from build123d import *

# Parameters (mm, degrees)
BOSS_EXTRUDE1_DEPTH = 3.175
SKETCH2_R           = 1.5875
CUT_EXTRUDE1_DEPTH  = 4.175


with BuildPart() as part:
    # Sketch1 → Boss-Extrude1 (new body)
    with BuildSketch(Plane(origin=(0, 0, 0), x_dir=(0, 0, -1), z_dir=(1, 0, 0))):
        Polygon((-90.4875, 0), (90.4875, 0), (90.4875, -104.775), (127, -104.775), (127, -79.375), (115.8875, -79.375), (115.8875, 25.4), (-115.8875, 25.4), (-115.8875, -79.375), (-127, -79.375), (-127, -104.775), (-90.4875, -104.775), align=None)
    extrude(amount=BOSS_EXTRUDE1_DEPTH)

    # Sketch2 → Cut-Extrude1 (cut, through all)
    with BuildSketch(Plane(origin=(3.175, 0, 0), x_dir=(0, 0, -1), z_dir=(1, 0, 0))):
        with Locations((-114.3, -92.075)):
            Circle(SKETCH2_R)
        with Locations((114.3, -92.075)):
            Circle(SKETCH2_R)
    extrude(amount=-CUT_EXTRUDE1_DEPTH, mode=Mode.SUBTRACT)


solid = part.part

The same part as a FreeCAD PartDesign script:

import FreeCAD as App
import Part
import Sketcher

V = App.Vector
Q = App.Units.Quantity


def add_polygon(sketch, points):
    """Adds a closed chain of lines whose ends are joined by coincident constraints."""
    first, n = sketch.GeometryCount, len(points)
    for a, b in zip(points, points[1:] + points[:1]):
        sketch.addGeometry(Part.LineSegment(App.Vector(*a, 0), App.Vector(*b, 0)), False)
    for i in range(n):
        sketch.addConstraint(Sketcher.Constraint("Coincident", first + i, 2, first + (i + 1) % n, 1))

doc = App.newDocument("Part")
body = doc.addObject("PartDesign::Body", "Body")

# Sketch on YZ plane
sketch1 = body.newObject("Sketcher::SketchObject", "Sketch")
sketch1.AttachmentSupport = (doc.getObject("YZ_Plane"), [""])
sketch1.MapMode = "FlatFace"
add_polygon(sketch1, [(0, 90), (0, -90), (-105, -90), (-105, -127), (-79, -127), (-79, -116), (25, -116), (25, 116), (-79, 116), (-79, 127), (-105, 127), (-105, 90)])  # lines 0-11
sketch1.addConstraint([
    Sketcher.Constraint("Vertical", 0),
    Sketcher.Constraint("Horizontal", 1),
    Sketcher.Constraint("Vertical", 2),
    Sketcher.Constraint("Horizontal", 3),
    Sketcher.Constraint("Vertical", 4),
    Sketcher.Constraint("Horizontal", 5),
    Sketcher.Constraint("Vertical", 6),
    Sketcher.Constraint("Horizontal", 7),
    Sketcher.Constraint("Vertical", 8),
    Sketcher.Constraint("Horizontal", 9),
    Sketcher.Constraint("Vertical", 10),
    Sketcher.Constraint("Horizontal", 11),
    Sketcher.Constraint("Symmetric", 0, 2, 11, 2, -1, 1),
    Sketcher.Constraint("Symmetric", 4, 2, 7, 2, -1),
    Sketcher.Constraint("Symmetric", 2, 2, 9, 2, -1),
    Sketcher.Constraint("Equal", 1, 5),
    Sketcher.Constraint("DistanceX", 3, 1, 3, 2, Q("1 in")),
    Sketcher.Constraint("DistanceY", 2, 2, -1, 1, Q("5 in")),
    Sketcher.Constraint("DistanceY", 4, 2, 1, 2, Q("1 in")),
    Sketcher.Constraint("DistanceX", 1, 2, 1, 1, Q("4.125 in")),
    Sketcher.Constraint("DistanceY", 0, 2, 0, 1, Q("7.125 in")),
])
pad1 = body.newObject("PartDesign::Pad", "Pad")
pad1.Profile = sketch1
pad1.Length = Q("0.125 in")

# Sketch on YZ plane
sketch2 = body.newObject("Sketcher::SketchObject", "Sketch001")
sketch2.AttachmentSupport = (doc.getObject("YZ_Plane"), [""])
sketch2.MapMode = "FlatFace"
sketch2.AttachmentOffset = App.Placement(V(0, 0, 0.125 * 25.4), App.Rotation())
sketch2.addGeometry([
    Part.Circle(V(-92.1, 114.3, 0), V(0, 0, 1), 1.6),
    Part.Circle(V(-92.1, -114.3, 0), V(0, 0, 1), 1.6),
], False)
sketch2.addConstraint([
    Sketcher.Constraint("Equal", 0, 1),
    Sketcher.Constraint("Symmetric", 0, 3, 1, 3, -1),
    Sketcher.Constraint("Diameter", 0, Q("0.125 in")),
    Sketcher.Constraint("DistanceY", 1, 3, 0, 3, Q("9 in")),
    Sketcher.Constraint("DistanceX", 0, 3, -1, 1, Q("3.625 in")),
])
pocket1 = body.newObject("PartDesign::Pocket", "Pocket")
pocket1.Profile = sketch2
pocket1.Type = "ThroughAll"

doc.recompute()
